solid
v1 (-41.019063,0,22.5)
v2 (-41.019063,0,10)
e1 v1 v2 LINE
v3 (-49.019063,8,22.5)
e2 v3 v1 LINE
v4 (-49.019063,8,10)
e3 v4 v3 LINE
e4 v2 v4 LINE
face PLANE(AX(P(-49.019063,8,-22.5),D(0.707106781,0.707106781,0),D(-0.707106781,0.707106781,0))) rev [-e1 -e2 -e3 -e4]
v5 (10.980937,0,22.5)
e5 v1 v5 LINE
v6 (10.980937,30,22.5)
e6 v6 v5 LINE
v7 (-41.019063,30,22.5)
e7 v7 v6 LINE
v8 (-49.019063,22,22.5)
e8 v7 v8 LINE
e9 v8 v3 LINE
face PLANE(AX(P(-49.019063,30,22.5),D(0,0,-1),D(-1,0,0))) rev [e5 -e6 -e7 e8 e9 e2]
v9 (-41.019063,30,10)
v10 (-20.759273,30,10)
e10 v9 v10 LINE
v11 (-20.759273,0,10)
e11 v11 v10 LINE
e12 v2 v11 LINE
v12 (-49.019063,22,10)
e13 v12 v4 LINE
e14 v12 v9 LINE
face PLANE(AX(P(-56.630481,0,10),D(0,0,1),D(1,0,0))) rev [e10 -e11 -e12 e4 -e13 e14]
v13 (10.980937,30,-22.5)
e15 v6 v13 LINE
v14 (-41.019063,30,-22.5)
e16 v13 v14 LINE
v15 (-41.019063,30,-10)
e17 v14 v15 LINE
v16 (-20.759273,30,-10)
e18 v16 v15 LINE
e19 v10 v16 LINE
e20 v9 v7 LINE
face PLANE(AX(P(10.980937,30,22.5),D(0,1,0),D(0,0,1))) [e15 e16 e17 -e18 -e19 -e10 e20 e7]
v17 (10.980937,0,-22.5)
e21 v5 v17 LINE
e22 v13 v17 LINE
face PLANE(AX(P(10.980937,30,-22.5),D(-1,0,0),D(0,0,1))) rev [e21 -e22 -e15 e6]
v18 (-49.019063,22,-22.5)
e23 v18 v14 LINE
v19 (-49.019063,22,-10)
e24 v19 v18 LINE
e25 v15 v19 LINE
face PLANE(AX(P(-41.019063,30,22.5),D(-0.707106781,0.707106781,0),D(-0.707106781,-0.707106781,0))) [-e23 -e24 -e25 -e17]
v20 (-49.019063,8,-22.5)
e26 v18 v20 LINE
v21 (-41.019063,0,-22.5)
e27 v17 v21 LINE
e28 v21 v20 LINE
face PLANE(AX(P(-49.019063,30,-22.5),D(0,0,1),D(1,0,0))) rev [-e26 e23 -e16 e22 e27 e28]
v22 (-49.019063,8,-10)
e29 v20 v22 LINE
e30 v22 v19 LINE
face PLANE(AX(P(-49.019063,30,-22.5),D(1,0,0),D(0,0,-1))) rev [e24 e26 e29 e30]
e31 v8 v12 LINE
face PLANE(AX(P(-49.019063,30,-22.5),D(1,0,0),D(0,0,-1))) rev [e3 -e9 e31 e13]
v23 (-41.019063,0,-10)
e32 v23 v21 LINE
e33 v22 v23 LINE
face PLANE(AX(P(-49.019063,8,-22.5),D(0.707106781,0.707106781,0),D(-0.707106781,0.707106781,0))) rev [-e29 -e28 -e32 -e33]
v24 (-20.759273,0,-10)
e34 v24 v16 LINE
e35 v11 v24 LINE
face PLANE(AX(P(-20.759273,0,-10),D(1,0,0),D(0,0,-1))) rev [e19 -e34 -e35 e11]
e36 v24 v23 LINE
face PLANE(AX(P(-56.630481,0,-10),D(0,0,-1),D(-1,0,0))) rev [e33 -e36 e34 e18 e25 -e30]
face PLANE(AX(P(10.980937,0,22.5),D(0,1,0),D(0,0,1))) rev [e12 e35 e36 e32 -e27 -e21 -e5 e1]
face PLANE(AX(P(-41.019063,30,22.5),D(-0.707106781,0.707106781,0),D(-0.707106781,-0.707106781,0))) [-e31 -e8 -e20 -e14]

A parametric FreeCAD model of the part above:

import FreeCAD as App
import Part
import Sketcher
from FreeCAD import Vector
Q = App.Units.Quantity


def edges_at(feature, points):
    """Names of the edges that pass closest to the given points."""
    edges = feature.Shape.Edges
    near = lambda p: min(range(len(edges)), key=lambda i: edges[i].distToShape(Part.Vertex(*p))[0])
    return sorted({f"Edge{near(p) + 1}" for p in points})


def add_polygon(sketch, points):
    """Adds a closed chain of lines whose ends are joined by coincident constraints."""
    first, n = sketch.GeometryCount, len(points)
    for a, b in zip(points, points[1:] + points[:1]):
        sketch.addGeometry(Part.LineSegment(App.Vector(*a, 0), App.Vector(*b, 0)), False)
    for i in range(n):
        sketch.addConstraint(Sketcher.Constraint("Coincident", first + i, 2, first + (i + 1) % n, 1))

doc = App.newDocument("Part")
params = doc.addObject("Spreadsheet::Sheet", "Params")
for row, (alias, value) in enumerate([
    ("sketch1_width", "60 mm"),
    ("sketch1_height", "45 mm"),
    ("pad1_length", "30 mm"),
    ("sketch2_height", "20 mm"),
    ("chamfer_size", "8 mm"),
], start=1):
    params.set(f"A{row}", alias)
    params.set(f"B{row}", "=" + value)
    params.setAlias(f"B{row}", alias)

body = doc.addObject("PartDesign::Body", "Body")

# Sketch on XZ plane
sketch1 = doc.addObject("Sketcher::SketchObject", "Sketch")
body.addObject(sketch1)
sketch1.AttachmentSupport = (doc.XZ_Plane, [""])
sketch1.MapMode = "FlatFace"
add_polygon(sketch1, [(-49, -22), (-49, 22), (11, 22), (11, -22)])  # lines 0-3
sketch1.addConstraint(Sketcher.Constraint("Vertical", 0))
sketch1.addConstraint(Sketcher.Constraint("Horizontal", 1))
sketch1.addConstraint(Sketcher.Constraint("Vertical", 2))
sketch1.addConstraint(Sketcher.Constraint("Horizontal", 3))
sketch1.addConstraint(Sketcher.Constraint("DistanceX", 1, 1, 1, 2, Q("60 mm")))
sketch1.addConstraint(Sketcher.Constraint("DistanceY", 0, 1, 0, 2, Q("45 mm")))
sketch1.addConstraint(Sketcher.Constraint("DistanceY", -1, 1, 0, 2, Q("22.5 mm")))
sketch1.addConstraint(Sketcher.Constraint("DistanceX", 0, 2, -1, 1, Q("49.019063 mm")))
sketch1.setExpression("Constraints[8]", "Params.sketch1_width")
sketch1.setExpression("Constraints[9]", "Params.sketch1_height")
pad1 = doc.addObject("PartDesign::Pad", "Pad")
body.addObject(pad1)
pad1.Profile = sketch1
pad1.setExpression("Length", "Params.pad1_length")
pad1.Reversed = True

# Sketch on XZ plane
sketch2 = doc.addObject("Sketcher::SketchObject", "Sketch001")
body.addObject(sketch2)
sketch2.AttachmentSupport = (doc.XZ_Plane, [""])
sketch2.MapMode = "FlatFace"
sketch2.AttachmentOffset = App.Placement(Vector(0, 0, -30), App.Rotation())
add_polygon(sketch2, [(-57, -10), (-57, 10), (-21, 10), (-21, -10)])  # lines 0-3
sketch2.addConstraint(Sketcher.Constraint("Vertical", 0))
sketch2.addConstraint(Sketcher.Constraint("Horizontal", 1))
sketch2.addConstraint(Sketcher.Constraint("Vertical", 2))
sketch2.addConstraint(Sketcher.Constraint("Horizontal", 3))
sketch2.addConstraint(Sketcher.Constraint("DistanceY", 0, 1, 0, 2, Q("20 mm")))
sketch2.addConstraint(Sketcher.Constraint("DistanceY", -1, 1, 0, 2, Q("10 mm")))
sketch2.addConstraint(Sketcher.Constraint("DistanceX", 1, 1, 1, 2, Q("35.871208 mm")))
sketch2.addConstraint(Sketcher.Constraint("DistanceX", 0, 2, -1, 1, Q("56.630481 mm")))
sketch2.setExpression("Constraints[8]", "Params.sketch2_height")
pocket1 = doc.addObject("PartDesign::Pocket", "Pocket")
body.addObject(pocket1)
pocket1.Profile = sketch2
pocket1.Type = "ThroughAll"
pocket1.Reversed = True
doc.recompute()

chamfer = doc.addObject("PartDesign::Chamfer", "Chamfer")
body.addObject(chamfer)
chamfer.Base = (pocket1, edges_at(pocket1, [
    (-49.019, 30, -16.25),
    (-49.019, 0, 16.25),
    (-49.019, 30, 16.25),
    (-49.019, 0, -16.25),
]))
chamfer.setExpression("Size", "Params.chamfer_size")

doc.recompute()
